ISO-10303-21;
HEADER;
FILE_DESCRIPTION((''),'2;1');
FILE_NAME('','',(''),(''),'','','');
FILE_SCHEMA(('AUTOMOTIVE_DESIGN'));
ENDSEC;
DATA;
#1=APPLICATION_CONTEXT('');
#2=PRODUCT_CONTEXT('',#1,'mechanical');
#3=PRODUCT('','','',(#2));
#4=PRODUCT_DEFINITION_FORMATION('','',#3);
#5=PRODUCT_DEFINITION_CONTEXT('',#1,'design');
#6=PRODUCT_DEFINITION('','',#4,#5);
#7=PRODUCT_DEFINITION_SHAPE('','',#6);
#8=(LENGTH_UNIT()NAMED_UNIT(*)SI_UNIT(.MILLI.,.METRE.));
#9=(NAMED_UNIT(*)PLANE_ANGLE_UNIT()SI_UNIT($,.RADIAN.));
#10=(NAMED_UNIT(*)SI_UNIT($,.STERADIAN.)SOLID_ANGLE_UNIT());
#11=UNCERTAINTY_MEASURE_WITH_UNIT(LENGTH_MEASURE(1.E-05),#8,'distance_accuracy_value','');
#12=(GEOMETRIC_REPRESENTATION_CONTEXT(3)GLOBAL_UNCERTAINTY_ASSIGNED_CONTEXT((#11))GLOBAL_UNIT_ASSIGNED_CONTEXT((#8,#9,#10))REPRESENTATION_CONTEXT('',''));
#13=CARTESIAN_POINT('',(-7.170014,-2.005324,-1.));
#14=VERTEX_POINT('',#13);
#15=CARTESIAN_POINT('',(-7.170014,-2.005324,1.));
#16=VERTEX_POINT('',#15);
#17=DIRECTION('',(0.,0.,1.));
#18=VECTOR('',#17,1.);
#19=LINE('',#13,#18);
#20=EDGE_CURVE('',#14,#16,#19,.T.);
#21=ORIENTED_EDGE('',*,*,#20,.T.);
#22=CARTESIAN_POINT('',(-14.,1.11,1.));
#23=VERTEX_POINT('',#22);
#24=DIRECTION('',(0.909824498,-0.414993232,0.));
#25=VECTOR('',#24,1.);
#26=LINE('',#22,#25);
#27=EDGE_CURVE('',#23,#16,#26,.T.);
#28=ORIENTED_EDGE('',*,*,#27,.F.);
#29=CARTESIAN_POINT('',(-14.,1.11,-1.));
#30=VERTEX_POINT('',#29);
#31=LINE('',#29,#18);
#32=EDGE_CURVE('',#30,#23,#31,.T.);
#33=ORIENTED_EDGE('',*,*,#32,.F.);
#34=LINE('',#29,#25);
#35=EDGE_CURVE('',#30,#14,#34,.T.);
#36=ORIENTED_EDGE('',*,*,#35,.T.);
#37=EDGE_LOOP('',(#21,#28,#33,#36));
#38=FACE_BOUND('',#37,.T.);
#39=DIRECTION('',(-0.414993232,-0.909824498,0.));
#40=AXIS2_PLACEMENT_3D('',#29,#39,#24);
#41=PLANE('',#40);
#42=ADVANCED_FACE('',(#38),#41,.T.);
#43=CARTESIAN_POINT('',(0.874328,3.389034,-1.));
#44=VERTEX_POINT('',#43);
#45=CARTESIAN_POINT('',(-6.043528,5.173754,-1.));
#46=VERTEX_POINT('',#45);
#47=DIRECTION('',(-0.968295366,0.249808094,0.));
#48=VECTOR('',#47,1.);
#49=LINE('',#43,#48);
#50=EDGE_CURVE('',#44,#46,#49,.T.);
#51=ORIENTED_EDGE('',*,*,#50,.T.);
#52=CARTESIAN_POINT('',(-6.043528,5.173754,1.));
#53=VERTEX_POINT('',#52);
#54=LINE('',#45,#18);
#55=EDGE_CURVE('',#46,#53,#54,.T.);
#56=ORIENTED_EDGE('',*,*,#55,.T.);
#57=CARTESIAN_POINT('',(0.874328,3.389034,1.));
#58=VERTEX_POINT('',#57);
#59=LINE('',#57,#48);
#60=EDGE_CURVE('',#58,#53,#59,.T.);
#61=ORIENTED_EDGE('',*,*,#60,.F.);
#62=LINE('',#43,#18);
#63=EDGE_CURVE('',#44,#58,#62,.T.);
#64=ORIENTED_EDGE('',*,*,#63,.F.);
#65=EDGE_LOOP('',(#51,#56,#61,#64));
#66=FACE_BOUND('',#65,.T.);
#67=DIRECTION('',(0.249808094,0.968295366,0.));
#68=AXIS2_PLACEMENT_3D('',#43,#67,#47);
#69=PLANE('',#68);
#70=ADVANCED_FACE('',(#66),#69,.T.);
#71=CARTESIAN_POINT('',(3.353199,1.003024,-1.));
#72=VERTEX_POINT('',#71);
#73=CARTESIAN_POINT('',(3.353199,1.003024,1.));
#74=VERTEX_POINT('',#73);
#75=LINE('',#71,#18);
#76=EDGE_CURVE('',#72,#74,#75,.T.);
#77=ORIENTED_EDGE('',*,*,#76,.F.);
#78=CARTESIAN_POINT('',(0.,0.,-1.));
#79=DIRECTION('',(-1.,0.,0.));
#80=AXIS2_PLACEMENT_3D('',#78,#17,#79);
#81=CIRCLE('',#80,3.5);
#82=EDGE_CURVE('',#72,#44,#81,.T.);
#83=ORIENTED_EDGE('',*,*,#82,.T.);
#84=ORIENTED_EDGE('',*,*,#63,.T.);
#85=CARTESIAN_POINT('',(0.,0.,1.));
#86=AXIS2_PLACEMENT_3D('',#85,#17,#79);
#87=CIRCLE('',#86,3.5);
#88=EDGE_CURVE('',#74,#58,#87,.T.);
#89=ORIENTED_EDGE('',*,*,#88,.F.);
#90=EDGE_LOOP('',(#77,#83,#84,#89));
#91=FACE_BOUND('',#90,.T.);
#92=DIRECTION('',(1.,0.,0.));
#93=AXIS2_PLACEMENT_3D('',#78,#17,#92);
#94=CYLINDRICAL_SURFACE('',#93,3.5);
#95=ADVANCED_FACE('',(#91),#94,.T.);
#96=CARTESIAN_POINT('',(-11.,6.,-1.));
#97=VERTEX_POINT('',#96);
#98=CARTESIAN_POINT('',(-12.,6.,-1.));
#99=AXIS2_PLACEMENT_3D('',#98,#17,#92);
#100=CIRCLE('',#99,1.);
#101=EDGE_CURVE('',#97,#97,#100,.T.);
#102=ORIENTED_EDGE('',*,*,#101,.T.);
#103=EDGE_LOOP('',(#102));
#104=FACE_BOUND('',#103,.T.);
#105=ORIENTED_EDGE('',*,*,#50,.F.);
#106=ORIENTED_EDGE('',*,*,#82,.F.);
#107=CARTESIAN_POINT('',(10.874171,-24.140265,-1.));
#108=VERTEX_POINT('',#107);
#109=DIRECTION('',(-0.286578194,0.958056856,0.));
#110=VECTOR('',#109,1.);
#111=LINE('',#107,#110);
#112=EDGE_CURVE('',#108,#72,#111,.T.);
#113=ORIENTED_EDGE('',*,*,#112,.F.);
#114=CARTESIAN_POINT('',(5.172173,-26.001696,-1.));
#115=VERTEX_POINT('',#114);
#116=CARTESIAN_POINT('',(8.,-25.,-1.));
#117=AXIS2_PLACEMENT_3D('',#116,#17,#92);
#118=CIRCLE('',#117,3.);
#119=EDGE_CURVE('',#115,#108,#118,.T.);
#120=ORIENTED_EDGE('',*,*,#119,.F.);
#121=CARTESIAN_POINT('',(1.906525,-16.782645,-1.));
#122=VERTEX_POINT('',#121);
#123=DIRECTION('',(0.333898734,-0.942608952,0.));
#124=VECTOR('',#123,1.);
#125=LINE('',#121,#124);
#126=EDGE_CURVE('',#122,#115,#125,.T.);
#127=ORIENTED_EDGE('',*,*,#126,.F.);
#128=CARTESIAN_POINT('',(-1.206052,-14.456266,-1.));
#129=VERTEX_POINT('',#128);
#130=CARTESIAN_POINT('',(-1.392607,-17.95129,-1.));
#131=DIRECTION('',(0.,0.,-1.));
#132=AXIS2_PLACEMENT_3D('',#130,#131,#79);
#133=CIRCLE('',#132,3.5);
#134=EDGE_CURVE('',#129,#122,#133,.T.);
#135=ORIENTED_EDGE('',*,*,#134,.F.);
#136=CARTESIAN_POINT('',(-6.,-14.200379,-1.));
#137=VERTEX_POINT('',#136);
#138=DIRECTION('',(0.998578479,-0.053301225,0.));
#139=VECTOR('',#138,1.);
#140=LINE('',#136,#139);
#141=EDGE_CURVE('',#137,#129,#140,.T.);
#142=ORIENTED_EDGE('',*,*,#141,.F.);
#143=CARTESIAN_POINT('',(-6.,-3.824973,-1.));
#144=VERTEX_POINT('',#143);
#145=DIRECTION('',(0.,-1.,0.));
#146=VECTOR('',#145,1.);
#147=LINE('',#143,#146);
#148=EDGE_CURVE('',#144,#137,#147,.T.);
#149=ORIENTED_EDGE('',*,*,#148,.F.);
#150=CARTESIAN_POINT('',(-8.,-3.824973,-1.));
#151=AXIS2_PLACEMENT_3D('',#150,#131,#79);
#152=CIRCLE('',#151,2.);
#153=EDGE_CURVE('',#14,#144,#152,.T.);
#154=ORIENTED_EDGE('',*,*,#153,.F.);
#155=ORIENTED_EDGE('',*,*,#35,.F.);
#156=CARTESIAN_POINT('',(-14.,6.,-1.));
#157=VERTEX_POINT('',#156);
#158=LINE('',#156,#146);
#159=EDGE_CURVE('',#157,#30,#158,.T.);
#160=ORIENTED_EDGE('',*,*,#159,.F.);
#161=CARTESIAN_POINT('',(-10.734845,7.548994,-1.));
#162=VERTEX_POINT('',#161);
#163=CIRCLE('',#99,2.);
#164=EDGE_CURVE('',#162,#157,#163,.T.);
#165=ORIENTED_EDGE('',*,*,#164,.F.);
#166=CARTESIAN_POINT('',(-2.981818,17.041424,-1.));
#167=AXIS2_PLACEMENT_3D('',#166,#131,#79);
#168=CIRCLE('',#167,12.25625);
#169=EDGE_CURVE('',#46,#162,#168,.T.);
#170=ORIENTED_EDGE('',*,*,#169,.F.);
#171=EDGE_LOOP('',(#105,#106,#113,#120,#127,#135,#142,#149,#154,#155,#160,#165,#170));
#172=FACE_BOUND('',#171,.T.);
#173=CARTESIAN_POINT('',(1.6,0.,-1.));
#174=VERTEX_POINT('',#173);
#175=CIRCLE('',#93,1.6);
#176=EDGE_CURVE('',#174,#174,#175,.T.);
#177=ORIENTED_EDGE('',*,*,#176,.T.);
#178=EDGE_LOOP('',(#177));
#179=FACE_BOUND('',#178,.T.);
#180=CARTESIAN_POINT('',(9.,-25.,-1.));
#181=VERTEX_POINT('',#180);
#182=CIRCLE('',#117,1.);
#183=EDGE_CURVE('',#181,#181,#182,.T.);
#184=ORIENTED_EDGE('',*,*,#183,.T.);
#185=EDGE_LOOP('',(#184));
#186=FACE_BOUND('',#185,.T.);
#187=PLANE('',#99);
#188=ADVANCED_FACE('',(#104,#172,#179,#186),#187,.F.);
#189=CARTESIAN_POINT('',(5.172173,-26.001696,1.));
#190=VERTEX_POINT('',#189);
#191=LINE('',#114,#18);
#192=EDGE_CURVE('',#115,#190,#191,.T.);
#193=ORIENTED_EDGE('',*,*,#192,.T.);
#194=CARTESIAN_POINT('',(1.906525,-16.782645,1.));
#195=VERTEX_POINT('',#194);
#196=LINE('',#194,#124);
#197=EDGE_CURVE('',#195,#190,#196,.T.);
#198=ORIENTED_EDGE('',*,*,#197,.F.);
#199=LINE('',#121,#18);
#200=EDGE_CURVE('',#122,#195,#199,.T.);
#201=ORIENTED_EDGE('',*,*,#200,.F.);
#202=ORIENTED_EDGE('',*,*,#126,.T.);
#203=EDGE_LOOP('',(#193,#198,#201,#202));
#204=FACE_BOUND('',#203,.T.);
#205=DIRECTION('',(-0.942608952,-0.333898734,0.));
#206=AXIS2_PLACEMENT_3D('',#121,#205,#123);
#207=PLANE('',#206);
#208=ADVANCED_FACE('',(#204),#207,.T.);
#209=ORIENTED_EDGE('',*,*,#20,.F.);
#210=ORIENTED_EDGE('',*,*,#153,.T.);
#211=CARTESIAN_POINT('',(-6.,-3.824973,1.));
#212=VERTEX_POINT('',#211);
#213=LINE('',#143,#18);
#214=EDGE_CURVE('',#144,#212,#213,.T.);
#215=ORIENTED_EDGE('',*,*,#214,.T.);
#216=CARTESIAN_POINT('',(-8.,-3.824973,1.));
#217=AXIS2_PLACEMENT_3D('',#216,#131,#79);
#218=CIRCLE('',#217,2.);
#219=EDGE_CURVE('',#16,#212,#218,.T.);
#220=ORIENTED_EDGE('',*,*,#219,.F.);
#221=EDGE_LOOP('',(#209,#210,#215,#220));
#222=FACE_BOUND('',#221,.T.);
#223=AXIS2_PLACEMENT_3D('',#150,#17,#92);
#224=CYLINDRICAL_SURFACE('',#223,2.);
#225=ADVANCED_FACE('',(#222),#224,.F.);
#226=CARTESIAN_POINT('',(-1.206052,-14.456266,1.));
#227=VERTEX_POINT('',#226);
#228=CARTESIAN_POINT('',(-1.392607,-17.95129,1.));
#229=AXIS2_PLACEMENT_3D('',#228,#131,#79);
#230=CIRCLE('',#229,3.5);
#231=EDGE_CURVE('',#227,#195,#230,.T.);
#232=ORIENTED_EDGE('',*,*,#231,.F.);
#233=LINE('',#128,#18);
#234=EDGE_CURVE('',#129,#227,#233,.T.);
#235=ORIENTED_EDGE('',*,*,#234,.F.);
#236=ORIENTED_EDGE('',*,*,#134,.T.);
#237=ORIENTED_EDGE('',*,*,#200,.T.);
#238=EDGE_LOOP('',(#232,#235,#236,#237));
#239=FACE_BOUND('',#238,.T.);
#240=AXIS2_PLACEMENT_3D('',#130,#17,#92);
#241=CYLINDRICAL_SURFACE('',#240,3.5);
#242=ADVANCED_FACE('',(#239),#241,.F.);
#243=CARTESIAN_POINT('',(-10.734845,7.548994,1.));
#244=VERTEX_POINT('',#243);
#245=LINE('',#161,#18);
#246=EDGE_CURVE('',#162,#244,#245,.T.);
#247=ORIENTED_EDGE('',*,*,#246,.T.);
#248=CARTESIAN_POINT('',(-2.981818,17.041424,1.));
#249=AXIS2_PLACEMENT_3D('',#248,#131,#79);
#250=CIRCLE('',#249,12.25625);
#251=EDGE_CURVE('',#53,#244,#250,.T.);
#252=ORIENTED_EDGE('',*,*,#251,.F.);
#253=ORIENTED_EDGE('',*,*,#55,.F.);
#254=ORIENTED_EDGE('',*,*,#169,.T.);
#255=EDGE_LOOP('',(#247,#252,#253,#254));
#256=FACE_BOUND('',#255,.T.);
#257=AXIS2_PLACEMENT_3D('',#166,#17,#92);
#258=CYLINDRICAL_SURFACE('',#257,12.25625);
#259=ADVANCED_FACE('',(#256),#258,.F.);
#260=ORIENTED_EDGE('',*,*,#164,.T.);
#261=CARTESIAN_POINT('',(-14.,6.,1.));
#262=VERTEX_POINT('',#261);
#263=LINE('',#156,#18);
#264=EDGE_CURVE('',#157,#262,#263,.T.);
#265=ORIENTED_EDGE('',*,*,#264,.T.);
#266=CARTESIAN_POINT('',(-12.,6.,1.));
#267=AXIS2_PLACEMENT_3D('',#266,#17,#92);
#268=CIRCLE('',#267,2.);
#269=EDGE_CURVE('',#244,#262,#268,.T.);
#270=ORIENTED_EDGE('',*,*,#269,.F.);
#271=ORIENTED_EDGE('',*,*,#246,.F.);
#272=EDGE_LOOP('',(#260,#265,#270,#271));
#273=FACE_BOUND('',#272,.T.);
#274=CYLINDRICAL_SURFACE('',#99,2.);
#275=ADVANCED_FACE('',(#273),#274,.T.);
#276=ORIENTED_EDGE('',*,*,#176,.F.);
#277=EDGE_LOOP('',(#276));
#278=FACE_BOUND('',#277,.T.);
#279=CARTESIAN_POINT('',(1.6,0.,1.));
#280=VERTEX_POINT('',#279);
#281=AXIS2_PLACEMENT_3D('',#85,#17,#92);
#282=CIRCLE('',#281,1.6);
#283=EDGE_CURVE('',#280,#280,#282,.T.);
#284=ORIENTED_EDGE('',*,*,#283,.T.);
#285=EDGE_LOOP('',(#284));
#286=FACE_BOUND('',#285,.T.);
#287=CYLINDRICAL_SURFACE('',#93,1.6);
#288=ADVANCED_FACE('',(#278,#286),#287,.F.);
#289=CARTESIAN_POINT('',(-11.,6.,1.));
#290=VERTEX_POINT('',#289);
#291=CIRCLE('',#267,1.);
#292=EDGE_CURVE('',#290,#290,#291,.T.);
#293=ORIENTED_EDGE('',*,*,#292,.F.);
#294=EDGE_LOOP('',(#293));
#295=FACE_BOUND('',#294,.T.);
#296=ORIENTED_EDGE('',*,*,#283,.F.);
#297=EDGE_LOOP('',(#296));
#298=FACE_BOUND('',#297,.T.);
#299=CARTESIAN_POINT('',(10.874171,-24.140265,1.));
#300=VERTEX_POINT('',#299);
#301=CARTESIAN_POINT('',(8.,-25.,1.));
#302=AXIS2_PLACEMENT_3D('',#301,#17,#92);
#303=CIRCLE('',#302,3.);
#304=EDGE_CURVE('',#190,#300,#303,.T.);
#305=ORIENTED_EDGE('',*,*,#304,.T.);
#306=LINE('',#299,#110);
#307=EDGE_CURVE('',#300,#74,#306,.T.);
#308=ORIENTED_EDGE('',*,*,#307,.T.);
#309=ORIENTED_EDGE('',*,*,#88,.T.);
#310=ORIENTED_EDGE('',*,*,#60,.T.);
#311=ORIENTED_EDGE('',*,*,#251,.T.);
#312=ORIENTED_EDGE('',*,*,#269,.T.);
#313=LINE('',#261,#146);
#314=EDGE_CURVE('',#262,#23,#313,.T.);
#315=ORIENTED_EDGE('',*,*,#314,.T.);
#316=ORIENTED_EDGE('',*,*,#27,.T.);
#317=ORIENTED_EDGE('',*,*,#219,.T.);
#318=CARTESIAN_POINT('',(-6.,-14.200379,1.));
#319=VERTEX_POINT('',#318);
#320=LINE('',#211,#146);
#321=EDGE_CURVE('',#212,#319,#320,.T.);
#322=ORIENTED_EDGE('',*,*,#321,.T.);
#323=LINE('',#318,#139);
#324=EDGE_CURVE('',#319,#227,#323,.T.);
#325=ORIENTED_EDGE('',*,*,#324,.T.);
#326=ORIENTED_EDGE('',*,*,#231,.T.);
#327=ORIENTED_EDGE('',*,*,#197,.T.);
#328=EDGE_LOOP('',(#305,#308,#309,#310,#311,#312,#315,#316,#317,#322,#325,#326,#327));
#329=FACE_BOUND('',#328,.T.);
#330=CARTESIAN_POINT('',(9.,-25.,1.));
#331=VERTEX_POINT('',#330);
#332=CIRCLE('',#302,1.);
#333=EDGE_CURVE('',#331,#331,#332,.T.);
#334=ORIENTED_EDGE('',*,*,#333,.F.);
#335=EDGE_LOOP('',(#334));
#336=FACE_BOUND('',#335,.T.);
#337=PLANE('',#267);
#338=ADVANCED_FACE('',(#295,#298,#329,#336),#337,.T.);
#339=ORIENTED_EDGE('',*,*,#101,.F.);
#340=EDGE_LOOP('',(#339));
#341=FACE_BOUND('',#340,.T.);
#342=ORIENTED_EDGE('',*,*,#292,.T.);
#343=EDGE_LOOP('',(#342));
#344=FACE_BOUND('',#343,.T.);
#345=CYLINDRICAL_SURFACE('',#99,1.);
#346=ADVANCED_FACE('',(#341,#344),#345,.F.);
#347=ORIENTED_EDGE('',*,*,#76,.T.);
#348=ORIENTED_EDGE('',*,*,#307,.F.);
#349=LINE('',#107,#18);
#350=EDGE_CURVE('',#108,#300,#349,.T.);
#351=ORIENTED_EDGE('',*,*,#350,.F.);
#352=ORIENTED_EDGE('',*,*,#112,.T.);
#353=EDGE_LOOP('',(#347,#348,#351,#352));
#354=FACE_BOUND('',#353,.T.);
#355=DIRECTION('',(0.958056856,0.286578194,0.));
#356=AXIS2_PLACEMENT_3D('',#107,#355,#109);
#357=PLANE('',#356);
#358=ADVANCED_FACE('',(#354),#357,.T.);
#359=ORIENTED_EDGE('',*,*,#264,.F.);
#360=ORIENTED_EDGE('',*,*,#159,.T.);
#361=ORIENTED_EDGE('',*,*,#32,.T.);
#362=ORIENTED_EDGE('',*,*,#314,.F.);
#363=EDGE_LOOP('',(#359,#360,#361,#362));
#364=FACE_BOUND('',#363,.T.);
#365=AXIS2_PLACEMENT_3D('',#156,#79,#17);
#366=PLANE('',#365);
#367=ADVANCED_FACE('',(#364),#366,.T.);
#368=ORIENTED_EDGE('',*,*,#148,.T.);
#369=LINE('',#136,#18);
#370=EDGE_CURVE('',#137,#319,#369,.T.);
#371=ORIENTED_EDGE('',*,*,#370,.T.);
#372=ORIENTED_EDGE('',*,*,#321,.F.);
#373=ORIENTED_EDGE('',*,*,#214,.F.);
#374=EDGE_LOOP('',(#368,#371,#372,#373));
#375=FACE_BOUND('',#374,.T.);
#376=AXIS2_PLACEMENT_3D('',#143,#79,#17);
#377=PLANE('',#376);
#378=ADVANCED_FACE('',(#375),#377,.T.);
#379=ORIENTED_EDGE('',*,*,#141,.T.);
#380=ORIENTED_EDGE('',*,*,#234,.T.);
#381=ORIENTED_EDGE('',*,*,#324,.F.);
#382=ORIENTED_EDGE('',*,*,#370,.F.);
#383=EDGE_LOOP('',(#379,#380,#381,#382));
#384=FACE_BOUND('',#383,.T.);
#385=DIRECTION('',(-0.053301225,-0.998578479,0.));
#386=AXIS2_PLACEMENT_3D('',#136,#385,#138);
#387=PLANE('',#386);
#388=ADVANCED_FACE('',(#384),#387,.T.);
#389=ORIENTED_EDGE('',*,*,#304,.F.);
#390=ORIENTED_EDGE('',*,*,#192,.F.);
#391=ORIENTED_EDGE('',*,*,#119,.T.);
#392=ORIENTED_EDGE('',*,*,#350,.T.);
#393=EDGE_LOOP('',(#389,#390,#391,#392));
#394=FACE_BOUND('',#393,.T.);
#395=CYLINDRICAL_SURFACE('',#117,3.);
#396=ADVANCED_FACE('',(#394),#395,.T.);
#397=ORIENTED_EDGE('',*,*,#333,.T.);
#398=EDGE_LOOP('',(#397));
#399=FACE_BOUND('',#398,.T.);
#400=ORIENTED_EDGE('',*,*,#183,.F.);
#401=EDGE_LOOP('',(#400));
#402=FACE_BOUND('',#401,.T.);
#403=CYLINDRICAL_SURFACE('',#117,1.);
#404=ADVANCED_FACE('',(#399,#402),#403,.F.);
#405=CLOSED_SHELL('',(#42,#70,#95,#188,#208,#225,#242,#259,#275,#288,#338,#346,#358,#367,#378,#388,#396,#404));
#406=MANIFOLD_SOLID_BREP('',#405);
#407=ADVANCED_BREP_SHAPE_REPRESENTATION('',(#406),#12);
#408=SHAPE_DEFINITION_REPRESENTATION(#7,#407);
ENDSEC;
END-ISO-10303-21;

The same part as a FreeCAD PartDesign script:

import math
import FreeCAD as App
import Part
import Sketcher

V = App.Vector
Q = App.Units.Quantity

doc = App.newDocument("Part")
body = doc.addObject("PartDesign::Body", "Body")

sketch1 = doc.addObject("Sketcher::SketchObject", "Sketch")
body.addObject(sketch1)
sketch1.AttachmentSupport = (doc.XY_Plane, [""])
sketch1.MapMode = "FlatFace"
sketch1.addGeometry([
    Part.LineSegment(V(0.9, 3.4, 0), V(-6, 5.2, 0)),
    Part.ArcOfCircle(Part.Circle(V(-3, 17, 0), V(0, 0, 1), 12.3), math.radians(-129), math.radians(-104)),
    Part.ArcOfCircle(Part.Circle(V(-12, 6, 0), V(0, 0, 1), 2), math.radians(51), math.radians(180)),
    Part.LineSegment(V(-14, 6, 0), V(-14, 1.1, 0)),
    Part.LineSegment(V(-14, 1.1, 0), V(-7.2, -2, 0)),
    Part.ArcOfCircle(Part.Circle(V(-8, -3.8, 0), V(0, 0, 1), 2), math.radians(0), math.radians(65)),
    Part.LineSegment(V(-6, -3.8, 0), V(-6, -14.2, 0)),
    Part.LineSegment(V(-6, -14.2, 0), V(-1.2, -14.5, 0)),
    Part.ArcOfCircle(Part.Circle(V(-1.4, -18, 0), V(0, 0, 1), 3.5), math.radians(20), math.radians(87)),
    Part.LineSegment(V(1.9, -16.8, 0), V(5.2, -26, 0)),
    Part.ArcOfCircle(Part.Circle(V(8, -25, 0), V(0, 0, 1), 3), math.radians(-160), math.radians(17)),
    Part.LineSegment(V(10.9, -24.1, 0), V(3.4, 1, 0)),
    Part.ArcOfCircle(Part.Circle(V(0, 0, 0), V(0, 0, 1), 3.5), math.radians(17), math.radians(76)),
    Part.Circle(V(8, -25, 0), V(0, 0, 1), 1),
    Part.Circle(V(-12, 6, 0), V(0, 0, 1), 1),
    Part.Circle(V(0, 0, 0), V(0, 0, 1), 1.6),
], False)
sketch1.addConstraint([
    Sketcher.Constraint("Tangent", 0, 2, 1, 2),
    Sketcher.Constraint("Tangent", 1, 1, 2, 1),
    Sketcher.Constraint("Tangent", 2, 2, 3, 1),
    Sketcher.Constraint("Coincident", 3, 2, 4, 1),
    Sketcher.Constraint("Tangent", 4, 2, 5, 2),
    Sketcher.Constraint("Tangent", 5, 1, 6, 1),
    Sketcher.Constraint("Coincident", 6, 2, 7, 1),
    Sketcher.Constraint("Tangent", 7, 2, 8, 2),
    Sketcher.Constraint("Tangent", 8, 1, 9, 1),
    Sketcher.Constraint("Tangent", 9, 2, 10, 1),
    Sketcher.Constraint("Tangent", 10, 2, 11, 1),
    Sketcher.Constraint("Tangent", 11, 2, 12, 1),
    Sketcher.Constraint("Tangent", 12, 2, 0, 1),
    Sketcher.Constraint("Vertical", 3),
    Sketcher.Constraint("Vertical", 6),
    Sketcher.Constraint("Coincident", 12, 3, -1, 1),
    Sketcher.Constraint("Coincident", 15, 3, -1, 1),
    Sketcher.Constraint("Coincident", 13, 3, 10, 3),
    Sketcher.Constraint("Coincident", 14, 3, 2, 3),
    Sketcher.Constraint("Equal", 2, 5),
    Sketcher.Constraint("Equal", 8, 12),
    Sketcher.Constraint("Equal", 13, 14),
    Sketcher.Constraint("Diameter", 13, Q("2 mm")),
    Sketcher.Constraint("Radius", 2, Q("2 mm")),
    Sketcher.Constraint("Radius", 10, Q("3 mm")),
    Sketcher.Constraint("Diameter", 15, Q("3.2 mm")),
    Sketcher.Constraint("Radius", 8, Q("3.5 mm")),
    Sketcher.Constraint("DistanceX", 2, 3, -1, 1, Q("12 mm")),
    Sketcher.Constraint("DistanceY", -1, 1, 2, 3, Q("6 mm")),
    Sketcher.Constraint("DistanceX", 5, 3, -1, 1, Q("8 mm")),
    Sketcher.Constraint("DistanceX", -1, 1, 10, 3, Q("8 mm")),
    Sketcher.Constraint("DistanceY", 10, 3, -1, 1, Q("25 mm")),
    Sketcher.Constraint("DistanceY", 3, 2, 3, 1, Q("4.89 mm")),
    Sketcher.Constraint("Radius", 1, Q("12.25625 mm")),
    Sketcher.Constraint("Distance", 7, Q("4.800772 mm")),
    Sketcher.Constraint("DistanceY", 6, 2, 6, 1, Q("10.375406 mm")),
    Sketcher.Constraint("DistanceY", 8, 3, -1, 1, Q("17.95129 mm")),
    Sketcher.Constraint("DistanceX", 0, 2, -1, 1, Q("6.043528 mm")),
    Sketcher.Constraint("DistanceY", 6, 2, -1, 1, Q("14.200379 mm")),
])
pad1 = doc.addObject("PartDesign::Pad", "Pad")
body.addObject(pad1)
pad1.Profile = sketch1
pad1.Length = 2
pad1.Midplane = True

doc.recompute()
